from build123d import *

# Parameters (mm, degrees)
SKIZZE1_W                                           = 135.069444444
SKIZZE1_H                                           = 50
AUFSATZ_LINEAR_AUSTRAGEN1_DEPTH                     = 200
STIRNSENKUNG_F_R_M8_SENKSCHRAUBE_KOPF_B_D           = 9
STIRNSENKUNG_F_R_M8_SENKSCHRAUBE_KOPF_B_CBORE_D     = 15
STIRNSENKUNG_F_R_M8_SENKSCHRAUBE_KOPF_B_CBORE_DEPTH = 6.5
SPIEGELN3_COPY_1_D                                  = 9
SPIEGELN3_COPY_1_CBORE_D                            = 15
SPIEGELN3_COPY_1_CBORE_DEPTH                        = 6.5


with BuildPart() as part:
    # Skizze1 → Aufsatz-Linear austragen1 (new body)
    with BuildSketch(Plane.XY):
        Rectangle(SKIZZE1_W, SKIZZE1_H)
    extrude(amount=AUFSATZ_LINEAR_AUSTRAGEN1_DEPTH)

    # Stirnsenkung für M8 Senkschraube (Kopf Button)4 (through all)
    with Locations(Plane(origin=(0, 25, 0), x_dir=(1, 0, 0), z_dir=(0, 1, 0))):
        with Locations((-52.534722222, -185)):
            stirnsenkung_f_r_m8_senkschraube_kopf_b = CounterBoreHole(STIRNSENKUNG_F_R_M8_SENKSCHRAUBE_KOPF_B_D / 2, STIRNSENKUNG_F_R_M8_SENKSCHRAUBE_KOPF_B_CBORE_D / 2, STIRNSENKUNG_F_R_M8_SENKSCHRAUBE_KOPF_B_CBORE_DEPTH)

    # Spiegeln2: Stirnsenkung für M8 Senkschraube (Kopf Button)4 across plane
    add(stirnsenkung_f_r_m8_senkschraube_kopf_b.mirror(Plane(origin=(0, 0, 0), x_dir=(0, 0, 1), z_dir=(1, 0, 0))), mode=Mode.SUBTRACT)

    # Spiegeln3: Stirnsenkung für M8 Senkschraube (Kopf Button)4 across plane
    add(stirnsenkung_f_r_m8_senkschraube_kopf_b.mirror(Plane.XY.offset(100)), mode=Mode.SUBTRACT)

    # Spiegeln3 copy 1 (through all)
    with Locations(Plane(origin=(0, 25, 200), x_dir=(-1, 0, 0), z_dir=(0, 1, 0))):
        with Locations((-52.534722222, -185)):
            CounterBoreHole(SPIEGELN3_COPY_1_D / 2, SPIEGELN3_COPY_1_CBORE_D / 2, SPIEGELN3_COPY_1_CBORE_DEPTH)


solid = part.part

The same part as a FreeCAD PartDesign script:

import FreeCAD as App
import Part
import Sketcher
from FreeCAD import Vector

doc = App.newDocument("Part")
body = doc.addObject("PartDesign::Body", "Body")

sketch1 = doc.addObject("Sketcher::SketchObject", "Sketch")
body.addObject(sketch1)
sketch1.AttachmentSupport = (doc.XY_Plane, [""])
sketch1.MapMode = "FlatFace"
sketch1.addGeometry(Part.LineSegment(Vector(-67.534722, 25, 0), Vector(-67.534722, -25, 0)), False)
sketch1.addGeometry(Part.LineSegment(Vector(-67.534722, -25, 0), Vector(67.534722, -25, 0)), False)
sketch1.addGeometry(Part.LineSegment(Vector(67.534722, -25, 0), Vector(67.534722, 25, 0)), False)
sketch1.addGeometry(Part.LineSegment(Vector(67.534722, 25, 0), Vector(-67.534722, 25, 0)), False)
sketch1.addConstraint(Sketcher.Constraint("Coincident", 0, 2, 1, 1))
sketch1.addConstraint(Sketcher.Constraint("Coincident", 1, 2, 2, 1))
sketch1.addConstraint(Sketcher.Constraint("Coincident", 2, 2, 3, 1))
sketch1.addConstraint(Sketcher.Constraint("Coincident", 3, 2, 0, 1))
sketch1.addConstraint(Sketcher.Constraint("Vertical", 0))
sketch1.addConstraint(Sketcher.Constraint("Horizontal", 1))
sketch1.addConstraint(Sketcher.Constraint("Vertical", 2))
sketch1.addConstraint(Sketcher.Constraint("Horizontal", 3))
sketch1.addConstraint(Sketcher.Constraint("Symmetric", 0, 2, 2, 2, -1, 1))
sketch1.addConstraint(Sketcher.Constraint("DistanceY", 0, 2, 0, 1, 50.0))
sketch1.addConstraint(Sketcher.Constraint("DistanceX", 1, 1, 1, 2, 135.069444))
pad1 = doc.addObject("PartDesign::Pad", "Pad")
body.addObject(pad1)
pad1.Profile = sketch1
pad1.Length = 200

sketch2 = doc.addObject("Sketcher::SketchObject", "Sketch001")
body.addObject(sketch2)
sketch2.AttachmentSupport = (doc.XZ_Plane, [""])
sketch2.MapMode = "FlatFace"
sketch2.AttachmentOffset = App.Placement(Vector(0, 0, -25), App.Rotation())
sketch2.addGeometry(Part.Circle(Vector(-52.534722, 185, 0), Vector(0, 0, 1), 4.5), False)
sketch2.addConstraint(Sketcher.Constraint("Diameter", 0, 9.0))
sketch2.addConstraint(Sketcher.Constraint("DistanceY", -1, 1, 0, 3, 185.0))
sketch2.addConstraint(Sketcher.Constraint("DistanceX", 0, 3, -1, 1, 52.534722))
doc.recompute()
hole = doc.addObject("PartDesign::Hole", "Hole")
body.addObject(hole)
hole.Profile = sketch2
hole.ThreadType = "None"
hole.Diameter = 9
hole.DepthType = "ThroughAll"
hole.HoleCutType = "Counterbore"
hole.HoleCutDiameter = 15
hole.HoleCutDepth = 6.5
hole.Reversed = True
doc.recompute()

mirrored = doc.addObject("PartDesign::Mirrored", "Mirrored")
body.addObject(mirrored)
mirrored.Originals = [hole]
mirrored.MirrorPlane = (doc.YZ_Plane, [""])
body.Tip = mirrored
doc.recompute()

datumplane = doc.addObject("PartDesign::Plane", "DatumPlane")
body.addObject(datumplane)
datumplane.AttachmentSupport = (doc.XY_Plane, [""])
datumplane.MapMode = "FlatFace"
datumplane.AttachmentOffset = App.Placement(Vector(0, 0, 100), App.Rotation())
mirrored2 = doc.addObject("PartDesign::Mirrored", "Mirrored001")
body.addObject(mirrored2)
mirrored2.Originals = [hole]
mirrored2.MirrorPlane = (datumplane, [""])
body.Tip = mirrored2

sketch3 = doc.addObject("Sketcher::SketchObject", "Sketch002")
body.addObject(sketch3)
sketch3.AttachmentSupport = (doc.XZ_Plane, [""])
sketch3.MapMode = "FlatFace"
sketch3.AttachmentOffset = App.Placement(Vector(0, 0, -25), App.Rotation())
sketch3.addGeometry(Part.Circle(Vector(52.534722, 15, 0), Vector(0, 0, 1), 4.5), False)
sketch3.addConstraint(Sketcher.Constraint("Diameter", 0, 9.0))
sketch3.addConstraint(Sketcher.Constraint("DistanceY", -1, 1, 0, 3, 15.0))
sketch3.addConstraint(Sketcher.Constraint("DistanceX", -1, 1, 0, 3, 52.534722))
doc.recompute()
hole2 = doc.addObject("PartDesign::Hole", "Hole001")
body.addObject(hole2)
hole2.Profile = sketch3
hole2.ThreadType = "None"
hole2.Diameter = 9
hole2.DepthType = "ThroughAll"
hole2.HoleCutType = "Counterbore"
hole2.HoleCutDiameter = 15
hole2.HoleCutDepth = 6.5
hole2.Reversed = True

doc.recompute()
